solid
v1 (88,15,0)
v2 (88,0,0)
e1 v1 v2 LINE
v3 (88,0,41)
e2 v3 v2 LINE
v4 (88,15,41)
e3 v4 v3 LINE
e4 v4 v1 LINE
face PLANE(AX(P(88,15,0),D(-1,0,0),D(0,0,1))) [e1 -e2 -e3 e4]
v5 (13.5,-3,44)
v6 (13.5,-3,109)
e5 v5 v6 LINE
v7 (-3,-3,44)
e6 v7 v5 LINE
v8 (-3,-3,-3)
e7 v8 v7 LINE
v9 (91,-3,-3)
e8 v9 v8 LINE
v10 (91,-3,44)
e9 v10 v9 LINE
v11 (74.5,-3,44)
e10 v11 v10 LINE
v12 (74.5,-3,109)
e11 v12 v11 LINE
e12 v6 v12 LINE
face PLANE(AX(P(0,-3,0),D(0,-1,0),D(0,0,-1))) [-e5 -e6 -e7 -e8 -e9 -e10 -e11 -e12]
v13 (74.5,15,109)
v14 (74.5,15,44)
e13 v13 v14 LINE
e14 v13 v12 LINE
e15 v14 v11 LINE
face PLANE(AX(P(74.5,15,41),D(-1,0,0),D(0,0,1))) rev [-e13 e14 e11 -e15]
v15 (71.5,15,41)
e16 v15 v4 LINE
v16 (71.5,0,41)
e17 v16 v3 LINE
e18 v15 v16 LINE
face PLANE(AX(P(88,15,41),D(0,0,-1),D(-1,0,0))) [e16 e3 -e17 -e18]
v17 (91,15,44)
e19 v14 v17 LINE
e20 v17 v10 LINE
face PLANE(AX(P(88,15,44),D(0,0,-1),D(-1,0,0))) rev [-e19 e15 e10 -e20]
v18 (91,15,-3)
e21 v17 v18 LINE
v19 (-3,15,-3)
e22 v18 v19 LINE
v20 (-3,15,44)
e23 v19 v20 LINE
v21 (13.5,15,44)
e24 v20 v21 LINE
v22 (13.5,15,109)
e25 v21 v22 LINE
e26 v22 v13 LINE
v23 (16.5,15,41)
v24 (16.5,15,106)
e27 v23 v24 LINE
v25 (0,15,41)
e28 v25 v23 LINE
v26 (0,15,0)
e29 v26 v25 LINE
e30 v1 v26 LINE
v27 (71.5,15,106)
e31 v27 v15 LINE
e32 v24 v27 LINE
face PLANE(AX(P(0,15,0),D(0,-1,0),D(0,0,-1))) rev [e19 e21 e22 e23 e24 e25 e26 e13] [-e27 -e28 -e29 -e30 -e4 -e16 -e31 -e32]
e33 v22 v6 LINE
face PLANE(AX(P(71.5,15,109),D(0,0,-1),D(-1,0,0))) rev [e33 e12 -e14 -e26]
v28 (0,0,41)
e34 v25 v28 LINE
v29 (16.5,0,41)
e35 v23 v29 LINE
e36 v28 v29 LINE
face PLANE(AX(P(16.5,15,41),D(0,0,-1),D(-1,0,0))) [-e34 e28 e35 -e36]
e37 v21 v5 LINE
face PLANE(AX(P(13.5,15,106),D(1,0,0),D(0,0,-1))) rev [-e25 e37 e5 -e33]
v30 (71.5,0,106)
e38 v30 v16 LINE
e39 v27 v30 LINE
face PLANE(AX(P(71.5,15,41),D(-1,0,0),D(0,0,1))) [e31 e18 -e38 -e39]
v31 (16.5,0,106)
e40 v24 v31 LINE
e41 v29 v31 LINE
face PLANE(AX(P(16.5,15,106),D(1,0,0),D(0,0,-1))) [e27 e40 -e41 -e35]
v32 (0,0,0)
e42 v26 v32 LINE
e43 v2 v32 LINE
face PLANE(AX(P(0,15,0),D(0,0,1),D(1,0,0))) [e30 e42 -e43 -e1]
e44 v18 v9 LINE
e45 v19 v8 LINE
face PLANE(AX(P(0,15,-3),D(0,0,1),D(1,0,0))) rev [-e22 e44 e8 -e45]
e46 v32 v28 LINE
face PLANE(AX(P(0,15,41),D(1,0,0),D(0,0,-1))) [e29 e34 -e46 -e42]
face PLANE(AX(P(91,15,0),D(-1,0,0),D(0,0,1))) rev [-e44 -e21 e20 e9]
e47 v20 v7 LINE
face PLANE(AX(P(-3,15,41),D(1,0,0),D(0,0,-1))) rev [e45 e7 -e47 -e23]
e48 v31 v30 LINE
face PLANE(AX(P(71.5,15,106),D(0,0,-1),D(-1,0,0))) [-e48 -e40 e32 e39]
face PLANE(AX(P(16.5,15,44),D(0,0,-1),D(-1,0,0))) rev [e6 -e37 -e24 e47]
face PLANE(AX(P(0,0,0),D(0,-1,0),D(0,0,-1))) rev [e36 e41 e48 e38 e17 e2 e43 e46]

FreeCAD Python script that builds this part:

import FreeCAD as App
import Part
import Sketcher

V = App.Vector


def faces_at(feature, points):
    """Names of the faces that lie closest to the given points."""
    faces = feature.Shape.Faces
    near = lambda p: min(range(len(faces)), key=lambda i: faces[i].distToShape(Part.Vertex(*p))[0])
    return sorted({f"Face{near(p) + 1}" for p in points})


def add_polygon(sketch, points):
    """Adds a closed chain of lines whose ends are joined by coincident constraints."""
    first, n = sketch.GeometryCount, len(points)
    for a, b in zip(points, points[1:] + points[:1]):
        sketch.addGeometry(Part.LineSegment(App.Vector(*a, 0), App.Vector(*b, 0)), False)
    for i in range(n):
        sketch.addConstraint(Sketcher.Constraint("Coincident", first + i, 2, first + (i + 1) % n, 1))

doc = App.newDocument("Part")
params = doc.addObject("Spreadsheet::Sheet", "Params")
for row, (alias, value) in enumerate([
    ("sketch1_width", "88 mm"),
    ("sketch1_width2", "55 mm"),
    ("sketch1_height", "41 mm"),
    ("sketch1_height2", "65 mm"),
    ("pad1_length", "15 mm"),
    ("thickness_wall", "3 mm"),
], start=1):
    params.set(f"A{row}", alias)
    params.set(f"B{row}", "=" + value)
    params.setAlias(f"B{row}", alias)

body = doc.addObject("PartDesign::Body", "Body")

# Sketch on XZ plane
sketch1 = doc.addObject("Sketcher::SketchObject", "Sketch")
body.addObject(sketch1)
sketch1.AttachmentSupport = (doc.XZ_Plane, [""])
sketch1.MapMode = "FlatFace"
add_polygon(sketch1, [(88, 0), (0, 0), (0, 41), (16.5, 41), (16.5, 106), (71.5, 106), (71.5, 41), (88, 41)])  # lines 0-7
sketch1.addConstraint(Sketcher.Constraint("Horizontal", 0))
sketch1.addConstraint(Sketcher.Constraint("Vertical", 1))
sketch1.addConstraint(Sketcher.Constraint("Horizontal", 2))
sketch1.addConstraint(Sketcher.Constraint("Vertical", 3))
sketch1.addConstraint(Sketcher.Constraint("Horizontal", 4))
sketch1.addConstraint(Sketcher.Constraint("Vertical", 5))
sketch1.addConstraint(Sketcher.Constraint("Horizontal", 6))
sketch1.addConstraint(Sketcher.Constraint("Vertical", 7))
sketch1.addConstraint(Sketcher.Constraint("Coincident", 0, 2, -1, 1))
sketch1.addConstraint(Sketcher.Constraint("Horizontal", 2, 2, 5, 2))
sketch1.addConstraint(Sketcher.Constraint("Equal", 2, 6))
sketch1.addConstraint(Sketcher.Constraint("DistanceX", 0, 2, 0, 1, 88.0))
sketch1.addConstraint(Sketcher.Constraint("DistanceX", 4, 1, 4, 2, 55.0))
sketch1.addConstraint(Sketcher.Constraint("DistanceY", 1, 1, 1, 2, 41.0))
sketch1.addConstraint(Sketcher.Constraint("DistanceY", 3, 1, 3, 2, 65.0))
sketch1.setExpression("Constraints[19]", "Params.sketch1_width")
sketch1.setExpression("Constraints[20]", "Params.sketch1_width2")
sketch1.setExpression("Constraints[21]", "Params.sketch1_height")
sketch1.setExpression("Constraints[22]", "Params.sketch1_height2")
pad1 = doc.addObject("PartDesign::Pad", "Pad")
body.addObject(pad1)
pad1.Profile = sketch1
pad1.setExpression("Length", "Params.pad1_length")
pad1.Reversed = True
doc.recompute()

thickness = doc.addObject("PartDesign::Thickness", "Thickness")
body.addObject(thickness)
thickness.Base = (pad1, faces_at(pad1, [(44, 15, 53)]))
thickness.setExpression("Value", "Params.thickness_wall")
thickness.Reversed = False
thickness.Join = "Intersection"

doc.recompute()
